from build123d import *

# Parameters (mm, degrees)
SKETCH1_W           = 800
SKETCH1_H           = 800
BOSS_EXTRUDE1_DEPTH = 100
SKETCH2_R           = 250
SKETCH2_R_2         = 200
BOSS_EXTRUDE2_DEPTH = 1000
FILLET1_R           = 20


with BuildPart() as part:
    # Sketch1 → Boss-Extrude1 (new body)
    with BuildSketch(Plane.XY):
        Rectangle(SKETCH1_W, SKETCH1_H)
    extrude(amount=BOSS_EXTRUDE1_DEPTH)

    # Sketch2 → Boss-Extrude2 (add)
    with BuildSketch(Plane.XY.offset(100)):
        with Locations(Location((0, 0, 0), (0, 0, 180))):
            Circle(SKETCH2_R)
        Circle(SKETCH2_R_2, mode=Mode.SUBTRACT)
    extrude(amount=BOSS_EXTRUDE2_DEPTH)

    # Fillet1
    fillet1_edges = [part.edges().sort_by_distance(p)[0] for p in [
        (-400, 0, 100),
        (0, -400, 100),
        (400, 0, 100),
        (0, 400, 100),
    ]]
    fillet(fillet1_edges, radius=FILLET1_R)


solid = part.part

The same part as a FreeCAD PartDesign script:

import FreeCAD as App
import Part
import Sketcher


def edges_at(feature, points):
    """Names of the edges that pass closest to the given points."""
    edges = feature.Shape.Edges
    near = lambda p: min(range(len(edges)), key=lambda i: edges[i].distToShape(Part.Vertex(*p))[0])
    return sorted({f"Edge{near(p) + 1}" for p in points})


def add_polygon(sketch, points):
    """Adds a closed chain of lines whose ends are joined by coincident constraints."""
    first, n = sketch.GeometryCount, len(points)
    for a, b in zip(points, points[1:] + points[:1]):
        sketch.addGeometry(Part.LineSegment(App.Vector(*a, 0), App.Vector(*b, 0)), False)
    for i in range(n):
        sketch.addConstraint(Sketcher.Constraint("Coincident", first + i, 2, first + (i + 1) % n, 1))

doc = App.newDocument("Part")
params = doc.addObject("Spreadsheet::Sheet", "Params")
for row, (alias, value) in enumerate([
    ("sketch1_width", "800 mm"),
    ("pad1_length", "100 mm"),
    ("sketch2_diameter", "500 mm"),
    ("sketch2_diameter2", "400 mm"),
    ("pad2_length", "1000 mm"),
    ("fillet_radius", "20 mm"),
], start=1):
    params.set(f"A{row}", alias)
    params.set(f"B{row}", "=" + value)
    params.setAlias(f"B{row}", alias)

body = doc.addObject("PartDesign::Body", "Body")

# Sketch on XY plane
sketch1 = body.newObject("Sketcher::SketchObject", "Sketch")
sketch1.AttachmentSupport = (doc.getObject("XY_Plane"), [""])
sketch1.MapMode = "FlatFace"
add_polygon(sketch1, [(-400, 400), (-400, -400), (400, -400), (400, 400)])  # lines 0-3
sketch1.addConstraint(Sketcher.Constraint("Vertical", 0))
sketch1.addConstraint(Sketcher.Constraint("Horizontal", 1))
sketch1.addConstraint(Sketcher.Constraint("Vertical", 2))
sketch1.addConstraint(Sketcher.Constraint("Horizontal", 3))
sketch1.addConstraint(Sketcher.Constraint("Symmetric", 0, 2, 2, 2, -1, 1))
sketch1.addConstraint(Sketcher.Constraint("Equal", 3, 0))
sketch1.addConstraint(Sketcher.Constraint("DistanceX", 1, 1, 1, 2, 800.0))
sketch1.setExpression("Constraints[10]", "Params.sketch1_width")
pad1 = body.newObject("PartDesign::Pad", "Pad")
pad1.Profile = sketch1
pad1.setExpression("Length", "Params.pad1_length")

# Sketch on XY plane
sketch2 = body.newObject("Sketcher::SketchObject", "Sketch001")
sketch2.AttachmentSupport = (doc.getObject("XY_Plane"), [""])
sketch2.MapMode = "FlatFace"
sketch2.AttachmentOffset = App.Placement(App.Vector(0, 0, 100), App.Rotation())
sketch2.addGeometry(Part.Circle(App.Vector(0, 0, 0), App.Vector(0, 0, 1), 250), False)
sketch2.addGeometry(Part.Circle(App.Vector(0, 0, 0), App.Vector(0, 0, 1), 200), False)
sketch2.addConstraint(Sketcher.Constraint("Coincident", 0, 3, -1, 1))
sketch2.addConstraint(Sketcher.Constraint("Coincident", 1, 3, -1, 1))
sketch2.addConstraint(Sketcher.Constraint("Diameter", 0, 500.0))
sketch2.addConstraint(Sketcher.Constraint("Diameter", 1, 400.0))
sketch2.setExpression("Constraints[2]", "Params.sketch2_diameter")
sketch2.setExpression("Constraints[3]", "Params.sketch2_diameter2")
pad2 = body.newObject("PartDesign::Pad", "Pad001")
pad2.Profile = sketch2
pad2.setExpression("Length", "Params.pad2_length")
doc.recompute()

fillet = body.newObject("PartDesign::Fillet", "Fillet")
fillet.Base = (pad2, edges_at(pad2, [
    (-400, 0, 100),
    (0, -400, 100),
    (400, 0, 100),
    (0, 400, 100),
]))
fillet.setExpression("Radius", "Params.fillet_radius")

doc.recompute()
